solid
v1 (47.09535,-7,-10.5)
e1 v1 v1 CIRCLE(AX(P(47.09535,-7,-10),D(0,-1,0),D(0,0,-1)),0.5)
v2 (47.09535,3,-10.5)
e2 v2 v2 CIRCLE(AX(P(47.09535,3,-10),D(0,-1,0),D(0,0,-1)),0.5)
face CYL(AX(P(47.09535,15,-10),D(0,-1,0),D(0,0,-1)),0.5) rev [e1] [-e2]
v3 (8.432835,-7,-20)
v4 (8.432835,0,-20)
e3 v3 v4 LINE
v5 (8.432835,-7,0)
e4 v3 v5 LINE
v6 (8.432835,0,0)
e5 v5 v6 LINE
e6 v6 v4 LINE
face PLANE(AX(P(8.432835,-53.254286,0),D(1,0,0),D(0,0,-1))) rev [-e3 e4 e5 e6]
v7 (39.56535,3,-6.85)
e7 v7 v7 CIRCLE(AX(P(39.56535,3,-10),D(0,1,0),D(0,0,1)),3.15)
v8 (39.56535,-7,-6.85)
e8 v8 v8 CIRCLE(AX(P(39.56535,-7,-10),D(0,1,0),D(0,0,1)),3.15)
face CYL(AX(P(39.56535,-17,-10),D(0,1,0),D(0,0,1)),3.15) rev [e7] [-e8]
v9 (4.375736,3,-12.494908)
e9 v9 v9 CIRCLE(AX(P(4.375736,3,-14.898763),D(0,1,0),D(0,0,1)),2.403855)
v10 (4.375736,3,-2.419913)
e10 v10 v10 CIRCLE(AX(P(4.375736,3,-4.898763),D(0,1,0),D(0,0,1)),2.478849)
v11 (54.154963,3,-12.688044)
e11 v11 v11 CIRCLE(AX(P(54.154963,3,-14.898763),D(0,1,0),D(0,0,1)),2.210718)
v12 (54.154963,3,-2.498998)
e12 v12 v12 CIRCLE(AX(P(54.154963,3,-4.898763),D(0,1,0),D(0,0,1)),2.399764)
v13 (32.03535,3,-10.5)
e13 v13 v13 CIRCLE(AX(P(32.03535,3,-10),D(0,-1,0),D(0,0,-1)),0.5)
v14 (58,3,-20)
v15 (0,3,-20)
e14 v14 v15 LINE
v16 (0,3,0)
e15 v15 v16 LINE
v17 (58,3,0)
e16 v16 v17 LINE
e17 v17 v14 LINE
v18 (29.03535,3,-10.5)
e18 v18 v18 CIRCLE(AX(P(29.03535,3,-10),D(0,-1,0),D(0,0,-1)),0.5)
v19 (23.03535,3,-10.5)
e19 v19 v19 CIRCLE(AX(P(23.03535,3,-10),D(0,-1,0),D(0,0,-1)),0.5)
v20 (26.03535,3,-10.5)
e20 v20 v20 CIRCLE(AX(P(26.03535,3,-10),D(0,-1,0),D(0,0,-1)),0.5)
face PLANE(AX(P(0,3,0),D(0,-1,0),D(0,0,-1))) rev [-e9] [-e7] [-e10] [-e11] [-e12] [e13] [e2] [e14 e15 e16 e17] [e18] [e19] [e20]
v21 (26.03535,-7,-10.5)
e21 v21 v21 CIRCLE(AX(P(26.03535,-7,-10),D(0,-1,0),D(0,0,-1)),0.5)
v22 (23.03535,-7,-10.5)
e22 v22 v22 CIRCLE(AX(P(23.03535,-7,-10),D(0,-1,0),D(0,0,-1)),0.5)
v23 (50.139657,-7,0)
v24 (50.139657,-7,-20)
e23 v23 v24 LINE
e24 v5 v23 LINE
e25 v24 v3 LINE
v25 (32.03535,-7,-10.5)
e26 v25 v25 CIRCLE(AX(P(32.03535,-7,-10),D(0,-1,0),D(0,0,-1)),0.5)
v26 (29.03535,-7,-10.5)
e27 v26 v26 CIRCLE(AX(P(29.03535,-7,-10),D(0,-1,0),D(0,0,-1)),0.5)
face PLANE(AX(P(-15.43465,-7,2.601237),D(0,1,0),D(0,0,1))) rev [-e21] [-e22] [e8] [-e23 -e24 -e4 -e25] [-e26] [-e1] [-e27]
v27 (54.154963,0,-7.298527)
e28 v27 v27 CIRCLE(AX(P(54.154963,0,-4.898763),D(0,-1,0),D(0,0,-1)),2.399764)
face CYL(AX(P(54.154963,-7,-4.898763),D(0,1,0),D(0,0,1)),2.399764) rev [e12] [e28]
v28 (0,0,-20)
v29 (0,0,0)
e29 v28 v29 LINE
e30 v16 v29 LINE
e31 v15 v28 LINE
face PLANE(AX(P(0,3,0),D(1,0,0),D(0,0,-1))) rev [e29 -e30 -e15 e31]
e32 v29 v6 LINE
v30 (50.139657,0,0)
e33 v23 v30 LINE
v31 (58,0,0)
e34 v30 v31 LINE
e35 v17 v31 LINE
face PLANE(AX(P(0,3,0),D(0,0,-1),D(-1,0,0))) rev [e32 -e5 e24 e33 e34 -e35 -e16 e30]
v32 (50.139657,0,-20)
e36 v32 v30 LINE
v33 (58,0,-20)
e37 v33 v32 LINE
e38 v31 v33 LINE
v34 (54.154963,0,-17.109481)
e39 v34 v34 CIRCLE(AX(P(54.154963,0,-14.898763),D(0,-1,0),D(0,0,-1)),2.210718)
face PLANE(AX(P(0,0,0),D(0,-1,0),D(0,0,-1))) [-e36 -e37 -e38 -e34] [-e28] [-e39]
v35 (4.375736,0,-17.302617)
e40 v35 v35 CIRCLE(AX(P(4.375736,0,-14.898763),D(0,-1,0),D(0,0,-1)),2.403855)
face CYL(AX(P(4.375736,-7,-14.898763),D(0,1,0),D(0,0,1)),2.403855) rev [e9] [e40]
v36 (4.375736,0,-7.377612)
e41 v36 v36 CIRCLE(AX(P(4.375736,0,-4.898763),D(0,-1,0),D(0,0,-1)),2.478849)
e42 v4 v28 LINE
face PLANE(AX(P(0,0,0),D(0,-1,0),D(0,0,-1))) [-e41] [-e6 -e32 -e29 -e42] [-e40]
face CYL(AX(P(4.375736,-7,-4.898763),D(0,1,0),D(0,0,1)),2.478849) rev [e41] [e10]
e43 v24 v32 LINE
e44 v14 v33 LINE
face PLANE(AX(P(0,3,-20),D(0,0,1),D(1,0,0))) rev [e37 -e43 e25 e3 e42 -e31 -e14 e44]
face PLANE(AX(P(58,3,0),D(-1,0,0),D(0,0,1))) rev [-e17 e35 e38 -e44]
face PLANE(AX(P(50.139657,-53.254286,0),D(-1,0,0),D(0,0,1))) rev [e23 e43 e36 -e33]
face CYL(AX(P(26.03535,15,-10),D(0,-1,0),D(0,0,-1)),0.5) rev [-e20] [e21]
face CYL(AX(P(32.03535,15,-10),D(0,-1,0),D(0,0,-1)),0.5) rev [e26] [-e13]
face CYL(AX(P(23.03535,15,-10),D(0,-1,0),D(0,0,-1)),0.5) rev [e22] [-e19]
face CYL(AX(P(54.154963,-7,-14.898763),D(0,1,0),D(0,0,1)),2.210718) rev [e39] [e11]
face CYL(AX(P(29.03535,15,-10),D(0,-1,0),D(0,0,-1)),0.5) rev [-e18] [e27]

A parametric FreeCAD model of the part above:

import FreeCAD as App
import Part
import Sketcher
from FreeCAD import Vector


def add_polygon(sketch, points):
    """Adds a closed chain of lines whose ends are joined by coincident constraints."""
    first, n = sketch.GeometryCount, len(points)
    for a, b in zip(points, points[1:] + points[:1]):
        sketch.addGeometry(Part.LineSegment(App.Vector(*a, 0), App.Vector(*b, 0)), False)
    for i in range(n):
        sketch.addConstraint(Sketcher.Constraint("Coincident", first + i, 2, first + (i + 1) % n, 1))

doc = App.newDocument("Part")
params = doc.addObject("Spreadsheet::Sheet", "Params")
for row, (alias, value) in enumerate([
    ("sketch1_width", "58 mm"),
    ("sketch1_height", "20 mm"),
    ("pad1_length", "3 mm"),
    ("pocket1_length", "10 mm"),
    ("sketch3_height", "20 mm"),
    ("pad2_length", "7 mm"),
    ("sketch4_diameter", "6.3 mm"),
    ("pocket2_length", "20 mm"),
    ("sketch5_diameter", "1 mm"),
    ("pocket3_length", "22 mm"),
], start=1):
    params.set(f"A{row}", alias)
    params.set(f"B{row}", "=" + value)
    params.setAlias(f"B{row}", alias)

body = doc.addObject("PartDesign::Body", "Body")

# Sketch on XZ plane
sketch1 = doc.addObject("Sketcher::SketchObject", "Sketch")
body.addObject(sketch1)
sketch1.AttachmentSupport = (doc.XZ_Plane, [""])
sketch1.MapMode = "FlatFace"
add_polygon(sketch1, [(0, -20), (0, 0), (58, 0), (58, -20)])  # lines 0-3
sketch1.addConstraint([
    Sketcher.Constraint("Vertical", 0),
    Sketcher.Constraint("Horizontal", 1),
    Sketcher.Constraint("Vertical", 2),
    Sketcher.Constraint("Horizontal", 3),
    Sketcher.Constraint("Coincident", 0, 2, -1, 1),
    Sketcher.Constraint("DistanceX", 1, 1, 1, 2, 58.0),
    Sketcher.Constraint("DistanceY", 0, 1, 0, 2, 20.0),
])
sketch1.setExpression("Constraints[9]", "Params.sketch1_width")
sketch1.setExpression("Constraints[10]", "Params.sketch1_height")
pad1 = doc.addObject("PartDesign::Pad", "Pad")
body.addObject(pad1)
pad1.Profile = sketch1
pad1.setExpression("Length", "Params.pad1_length")
pad1.Reversed = True

# Sketch on XZ plane
sketch2 = doc.addObject("Sketcher::SketchObject", "Sketch001")
body.addObject(sketch2)
sketch2.AttachmentSupport = (doc.XZ_Plane, [""])
sketch2.MapMode = "FlatFace"
sketch2.AttachmentOffset = App.Placement(Vector(0, 0, -3), App.Rotation())
sketch2.addGeometry([
    Part.Circle(Vector(54.2, -14.9, 0), Vector(0, 0, 1), 2.2),
    Part.Circle(Vector(54.2, -4.9, 0), Vector(0, 0, 1), 2.4),
    Part.Circle(Vector(4.4, -4.9, 0), Vector(0, 0, 1), 2.5),
    Part.Circle(Vector(4.4, -14.9, 0), Vector(0, 0, 1), 2.4),
], False)
sketch2.addConstraint([
    Sketcher.Constraint("Horizontal", 1, 3, 2, 3),
    Sketcher.Constraint("Horizontal", 0, 3, 3, 3),
    Sketcher.Constraint("Vertical", 0, 3, 1, 3),
    Sketcher.Constraint("Vertical", 2, 3, 3, 3),
    Sketcher.Constraint("DistanceY", 0, 3, 1, 3, 10.0),
    Sketcher.Constraint("Diameter", 2, 4.957698),
    Sketcher.Constraint("Diameter", 1, 4.799529),
    Sketcher.Constraint("Diameter", 3, 4.807709),
    Sketcher.Constraint("Diameter", 0, 4.421437),
    Sketcher.Constraint("DistanceX", -1, 1, 0, 3, 54.154963),
    Sketcher.Constraint("DistanceY", 0, 3, -1, 1, 14.898763),
    Sketcher.Constraint("DistanceX", -1, 1, 2, 3, 4.375736),
])
pocket1 = doc.addObject("PartDesign::Pocket", "Pocket")
body.addObject(pocket1)
pocket1.Profile = sketch2
pocket1.setExpression("Length", "Params.pocket1_length")
pocket1.Reversed = True

# Sketch on XZ plane
sketch3 = doc.addObject("Sketcher::SketchObject", "Sketch002")
body.addObject(sketch3)
sketch3.AttachmentSupport = (doc.XZ_Plane, [""])
sketch3.MapMode = "FlatFace"
add_polygon(sketch3, [(8, 0), (8, -20), (50, -20), (50, 0)])  # lines 0-3
sketch3.addConstraint([
    Sketcher.Constraint("Vertical", 0),
    Sketcher.Constraint("Horizontal", 1),
    Sketcher.Constraint("Vertical", 2),
    Sketcher.Constraint("Horizontal", 3),
    Sketcher.Constraint("PointOnObject", 2, 2, -1),
    Sketcher.Constraint("DistanceY", 0, 2, 0, 1, 20.0),
    Sketcher.Constraint("DistanceX", 1, 1, 1, 2, 41.706822),
    Sketcher.Constraint("DistanceX", -1, 1, 0, 2, 8.432835),
])
sketch3.setExpression("Constraints[9]", "Params.sketch3_height")
pad2 = doc.addObject("PartDesign::Pad", "Pad001")
body.addObject(pad2)
pad2.Profile = sketch3
pad2.setExpression("Length", "Params.pad2_length")

# Sketch on XZ plane
sketch4 = doc.addObject("Sketcher::SketchObject", "Sketch003")
body.addObject(sketch4)
sketch4.AttachmentSupport = (doc.XZ_Plane, [""])
sketch4.MapMode = "FlatFace"
sketch4.AttachmentOffset = App.Placement(Vector(0, 0, -3), App.Rotation())
sketch4.addGeometry(Part.Circle(Vector(39.6, -10, 0), Vector(0, 0, 1), 3.1), False)
sketch4.addConstraint([
    Sketcher.Constraint("Diameter", 0, 6.3),
    Sketcher.Constraint("DistanceY", 0, 3, -1, 1, 10.0),
    Sketcher.Constraint("DistanceX", -1, 1, 0, 3, 39.56535),
])
sketch4.setExpression("Constraints[0]", "Params.sketch4_diameter")
pocket2 = doc.addObject("PartDesign::Pocket", "Pocket001")
body.addObject(pocket2)
pocket2.Profile = sketch4
pocket2.setExpression("Length", "Params.pocket2_length")
pocket2.Reversed = True

# Sketch on XZ plane
sketch5 = doc.addObject("Sketcher::SketchObject", "Sketch004")
body.addObject(sketch5)
sketch5.AttachmentSupport = (doc.XZ_Plane, [""])
sketch5.MapMode = "FlatFace"
sketch5.AttachmentOffset = App.Placement(Vector(0, 0, 7), App.Rotation())
sketch5.addGeometry([
    Part.Circle(Vector(26, -10, 0), Vector(0, 0, 1), 0.5),  # 0
    Part.Circle(Vector(29, -10, 0), Vector(0, 0, 1), 0.5),  # 1
    Part.Circle(Vector(23, -10, 0), Vector(0, 0, 1), 0.5),  # 2
    Part.Circle(Vector(32, -10, 0), Vector(0, 0, 1), 0.5),  # 3
    Part.Circle(Vector(47.1, -10, 0), Vector(0, 0, 1), 0.5),  # 4
], False)
sketch5.addConstraint([
    Sketcher.Constraint("Equal", 0, 1),
    Sketcher.Constraint("Equal", 1, 2),
    Sketcher.Constraint("Equal", 2, 3),
    Sketcher.Constraint("Equal", 3, 4),
    Sketcher.Constraint("Horizontal", 0, 3, 1, 3),
    Sketcher.Constraint("Horizontal", 1, 3, 2, 3),
    Sketcher.Constraint("Horizontal", 2, 3, 3, 3),
    Sketcher.Constraint("Horizontal", 3, 3, 4, 3),
    Sketcher.Constraint("Diameter", 0, 1.0),
    Sketcher.Constraint("DistanceY", 0, 3, -1, 1, 10.0),
    Sketcher.Constraint("DistanceX", 0, 3, 1, 3, 3.0),
    Sketcher.Constraint("DistanceX", 2, 3, 0, 3, 3.0),
    Sketcher.Constraint("DistanceX", 1, 3, 3, 3, 3.0),
    Sketcher.Constraint("DistanceX", 3, 3, 4, 3, 15.06),
    Sketcher.Constraint("DistanceX", -1, 1, 0, 3, 26.03535),
])
sketch5.setExpression("Constraints[8]", "Params.sketch5_diameter")
pocket3 = doc.addObject("PartDesign::Pocket", "Pocket002")
body.addObject(pocket3)
pocket3.Profile = sketch5
pocket3.setExpression("Length", "Params.pocket3_length")

doc.recompute()
